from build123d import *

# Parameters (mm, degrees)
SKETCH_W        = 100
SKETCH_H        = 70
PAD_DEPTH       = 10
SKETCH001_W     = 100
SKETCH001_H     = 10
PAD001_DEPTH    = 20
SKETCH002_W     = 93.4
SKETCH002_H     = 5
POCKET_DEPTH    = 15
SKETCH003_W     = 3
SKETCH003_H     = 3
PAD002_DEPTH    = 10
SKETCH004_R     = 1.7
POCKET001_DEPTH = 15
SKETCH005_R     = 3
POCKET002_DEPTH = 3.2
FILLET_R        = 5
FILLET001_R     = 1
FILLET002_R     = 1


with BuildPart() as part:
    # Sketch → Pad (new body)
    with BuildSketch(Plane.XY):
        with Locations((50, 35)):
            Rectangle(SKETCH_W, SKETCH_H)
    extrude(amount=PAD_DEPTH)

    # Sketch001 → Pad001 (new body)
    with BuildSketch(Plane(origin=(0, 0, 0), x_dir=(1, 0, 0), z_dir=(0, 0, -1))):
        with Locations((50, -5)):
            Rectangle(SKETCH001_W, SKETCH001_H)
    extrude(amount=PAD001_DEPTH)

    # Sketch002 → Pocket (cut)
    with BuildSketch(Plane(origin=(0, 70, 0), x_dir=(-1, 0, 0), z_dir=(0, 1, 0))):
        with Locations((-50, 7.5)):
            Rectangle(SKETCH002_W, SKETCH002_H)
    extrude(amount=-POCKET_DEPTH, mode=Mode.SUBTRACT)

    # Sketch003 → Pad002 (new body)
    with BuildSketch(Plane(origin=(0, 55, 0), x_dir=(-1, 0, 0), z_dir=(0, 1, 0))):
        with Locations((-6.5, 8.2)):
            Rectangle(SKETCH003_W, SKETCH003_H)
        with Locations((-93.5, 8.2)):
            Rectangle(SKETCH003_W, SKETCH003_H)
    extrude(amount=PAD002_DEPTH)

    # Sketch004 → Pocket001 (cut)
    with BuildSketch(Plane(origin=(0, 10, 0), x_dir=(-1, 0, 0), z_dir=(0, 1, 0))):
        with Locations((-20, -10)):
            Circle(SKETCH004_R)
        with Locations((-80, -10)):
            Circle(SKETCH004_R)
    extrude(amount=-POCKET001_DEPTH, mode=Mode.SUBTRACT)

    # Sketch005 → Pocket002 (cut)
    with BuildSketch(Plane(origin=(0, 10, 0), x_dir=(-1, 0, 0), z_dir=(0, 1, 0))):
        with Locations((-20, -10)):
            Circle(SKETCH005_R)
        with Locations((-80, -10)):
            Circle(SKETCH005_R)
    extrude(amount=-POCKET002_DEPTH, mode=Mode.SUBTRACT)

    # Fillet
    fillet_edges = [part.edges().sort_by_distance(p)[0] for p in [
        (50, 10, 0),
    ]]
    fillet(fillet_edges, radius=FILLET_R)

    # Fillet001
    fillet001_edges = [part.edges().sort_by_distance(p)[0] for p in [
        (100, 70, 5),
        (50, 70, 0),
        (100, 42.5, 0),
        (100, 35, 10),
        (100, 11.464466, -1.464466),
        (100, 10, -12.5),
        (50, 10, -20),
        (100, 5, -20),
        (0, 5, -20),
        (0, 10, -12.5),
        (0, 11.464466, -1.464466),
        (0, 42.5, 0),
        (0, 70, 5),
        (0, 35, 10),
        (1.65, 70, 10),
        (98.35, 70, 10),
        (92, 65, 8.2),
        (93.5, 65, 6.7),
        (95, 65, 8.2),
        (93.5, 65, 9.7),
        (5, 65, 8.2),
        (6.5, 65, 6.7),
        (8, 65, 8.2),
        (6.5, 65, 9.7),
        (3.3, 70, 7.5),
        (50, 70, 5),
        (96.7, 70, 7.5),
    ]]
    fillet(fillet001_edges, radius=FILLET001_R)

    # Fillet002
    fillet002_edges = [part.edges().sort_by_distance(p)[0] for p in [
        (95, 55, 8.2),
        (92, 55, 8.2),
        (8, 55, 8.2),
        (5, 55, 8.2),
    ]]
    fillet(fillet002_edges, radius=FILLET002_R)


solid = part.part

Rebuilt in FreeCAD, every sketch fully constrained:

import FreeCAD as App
import Part
import Sketcher


def edges_at(feature, points):
    """Names of the edges that pass closest to the given points."""
    edges = feature.Shape.Edges
    near = lambda p: min(range(len(edges)), key=lambda i: edges[i].distToShape(Part.Vertex(*p))[0])
    return sorted({f"Edge{near(p) + 1}" for p in points})

doc = App.newDocument("Part")
body = doc.addObject("PartDesign::Body", "Body")

sketch1 = body.newObject("Sketcher::SketchObject", "Sketch")
sketch1.AttachmentSupport = (doc.getObject("XY_Plane"), [""])
sketch1.MapMode = "FlatFace"
sketch1.addGeometry([
    Part.LineSegment(App.Vector(0, 70, 0), App.Vector(0, 0, 0)),
    Part.LineSegment(App.Vector(0, 0, 0), App.Vector(100, 0, 0)),
    Part.LineSegment(App.Vector(100, 0, 0), App.Vector(100, 70, 0)),
    Part.LineSegment(App.Vector(100, 70, 0), App.Vector(0, 70, 0)),
], False)
sketch1.addConstraint([
    Sketcher.Constraint("Coincident", 0, 2, 1, 1),
    Sketcher.Constraint("Coincident", 1, 2, 2, 1),
    Sketcher.Constraint("Coincident", 2, 2, 3, 1),
    Sketcher.Constraint("Coincident", 3, 2, 0, 1),
    Sketcher.Constraint("Vertical", 0),
    Sketcher.Constraint("Horizontal", 1),
    Sketcher.Constraint("Vertical", 2),
    Sketcher.Constraint("Horizontal", 3),
    Sketcher.Constraint("Coincident", 0, 2, -1, 1),
    Sketcher.Constraint("DistanceX", 1, 1, 1, 2, 100.0),
    Sketcher.Constraint("DistanceY", 0, 2, 0, 1, 70.0),
])
pad1 = body.newObject("PartDesign::Pad", "Pad")
pad1.Profile = sketch1
pad1.Length = 10

sketch2 = body.newObject("Sketcher::SketchObject", "Sketch001")
sketch2.AttachmentSupport = (doc.getObject("XY_Plane"), [""])
sketch2.MapMode = "FlatFace"
sketch2.addGeometry([
    Part.LineSegment(App.Vector(0, 0, 0), App.Vector(0, 10, 0)),
    Part.LineSegment(App.Vector(0, 10, 0), App.Vector(100, 10, 0)),
    Part.LineSegment(App.Vector(100, 10, 0), App.Vector(100, 0, 0)),
    Part.LineSegment(App.Vector(100, 0, 0), App.Vector(0, 0, 0)),
], False)
sketch2.addConstraint([
    Sketcher.Constraint("Coincident", 0, 2, 1, 1),
    Sketcher.Constraint("Coincident", 1, 2, 2, 1),
    Sketcher.Constraint("Coincident", 2, 2, 3, 1),
    Sketcher.Constraint("Coincident", 3, 2, 0, 1),
    Sketcher.Constraint("Vertical", 0),
    Sketcher.Constraint("Horizontal", 1),
    Sketcher.Constraint("Vertical", 2),
    Sketcher.Constraint("Horizontal", 3),
    Sketcher.Constraint("Coincident", 3, 2, -1, 1),
    Sketcher.Constraint("DistanceX", 1, 1, 1, 2, 100.0),
    Sketcher.Constraint("DistanceY", 0, 1, 0, 2, 10.0),
])
pad2 = body.newObject("PartDesign::Pad", "Pad001")
pad2.Profile = sketch2
pad2.Length = 20
pad2.Reversed = True

sketch3 = body.newObject("Sketcher::SketchObject", "Sketch002")
sketch3.AttachmentSupport = (doc.getObject("XZ_Plane"), [""])
sketch3.MapMode = "FlatFace"
sketch3.AttachmentOffset = App.Placement(App.Vector(0, 0, -70), App.Rotation())
sketch3.addGeometry([
    Part.LineSegment(App.Vector(97, 10, 0), App.Vector(97, 5, 0)),
    Part.LineSegment(App.Vector(97, 5, 0), App.Vector(3, 5, 0)),
    Part.LineSegment(App.Vector(3, 5, 0), App.Vector(3, 10, 0)),
    Part.LineSegment(App.Vector(3, 10, 0), App.Vector(97, 10, 0)),
], False)
sketch3.addConstraint([
    Sketcher.Constraint("Coincident", 0, 2, 1, 1),
    Sketcher.Constraint("Coincident", 1, 2, 2, 1),
    Sketcher.Constraint("Coincident", 2, 2, 3, 1),
    Sketcher.Constraint("Coincident", 3, 2, 0, 1),
    Sketcher.Constraint("Vertical", 0),
    Sketcher.Constraint("Horizontal", 1),
    Sketcher.Constraint("Vertical", 2),
    Sketcher.Constraint("Horizontal", 3),
    Sketcher.Constraint("DistanceY", 0, 2, 0, 1, 5.0),
    Sketcher.Constraint("DistanceX", 1, 2, 1, 1, 93.4),
    Sketcher.Constraint("DistanceY", -1, 1, 0, 2, 5.0),
    Sketcher.Constraint("DistanceX", -1, 1, 0, 2, 96.7),
])
pocket1 = body.newObject("PartDesign::Pocket", "Pocket")
pocket1.Profile = sketch3
pocket1.Length = 15
pocket1.Reversed = True

sketch4 = body.newObject("Sketcher::SketchObject", "Sketch003")
sketch4.AttachmentSupport = (doc.getObject("XZ_Plane"), [""])
sketch4.MapMode = "FlatFace"
sketch4.AttachmentOffset = App.Placement(App.Vector(0, 0, -55), App.Rotation())
sketch4.addGeometry([
    Part.LineSegment(App.Vector(8, 9.7, 0), App.Vector(8, 6.7, 0)),
    Part.LineSegment(App.Vector(8, 6.7, 0), App.Vector(5, 6.7, 0)),
    Part.LineSegment(App.Vector(5, 6.7, 0), App.Vector(5, 9.7, 0)),
    Part.LineSegment(App.Vector(5, 9.7, 0), App.Vector(8, 9.7, 0)),
    Part.LineSegment(App.Vector(95, 9.7, 0), App.Vector(95, 6.7, 0)),
    Part.LineSegment(App.Vector(95, 6.7, 0), App.Vector(92, 6.7, 0)),
    Part.LineSegment(App.Vector(92, 6.7, 0), App.Vector(92, 9.7, 0)),
    Part.LineSegment(App.Vector(92, 9.7, 0), App.Vector(95, 9.7, 0)),
], False)
sketch4.addConstraint([
    Sketcher.Constraint("Coincident", 0, 2, 1, 1),
    Sketcher.Constraint("Coincident", 1, 2, 2, 1),
    Sketcher.Constraint("Coincident", 2, 2, 3, 1),
    Sketcher.Constraint("Coincident", 3, 2, 0, 1),
    Sketcher.Constraint("Coincident", 4, 2, 5, 1),
    Sketcher.Constraint("Coincident", 5, 2, 6, 1),
    Sketcher.Constraint("Coincident", 6, 2, 7, 1),
    Sketcher.Constraint("Coincident", 7, 2, 4, 1),
    Sketcher.Constraint("Vertical", 0),
    Sketcher.Constraint("Horizontal", 1),
    Sketcher.Constraint("Vertical", 2),
    Sketcher.Constraint("Horizontal", 3),
    Sketcher.Constraint("Vertical", 4),
    Sketcher.Constraint("Horizontal", 5),
    Sketcher.Constraint("Vertical", 6),
    Sketcher.Constraint("Horizontal", 7),
    Sketcher.Constraint("Horizontal", 1, 2, 4, 2),
    Sketcher.Constraint("Horizontal", 3, 2, 6, 2),
    Sketcher.Constraint("Equal", 3, 5),
    Sketcher.Constraint("Equal", 7, 0),
    Sketcher.Constraint("DistanceX", 1, 2, 1, 1, 3.0),
    Sketcher.Constraint("DistanceX", -1, 1, 0, 2, 8.0),
    Sketcher.Constraint("DistanceX", -1, 1, 4, 2, 95.0),
    Sketcher.Constraint("DistanceY", -1, 1, 0, 2, 6.7),
])
pad3 = body.newObject("PartDesign::Pad", "Pad002")
pad3.Profile = sketch4
pad3.Length = 10
pad3.Reversed = True

sketch5 = body.newObject("Sketcher::SketchObject", "Sketch004")
sketch5.AttachmentSupport = (doc.getObject("XZ_Plane"), [""])
sketch5.MapMode = "FlatFace"
sketch5.AttachmentOffset = App.Placement(App.Vector(0, 0, -10), App.Rotation())
sketch5.addGeometry([
    Part.Circle(App.Vector(20, -10, 0), App.Vector(0, 0, 1), 1.7),
    Part.Circle(App.Vector(80, -10, 0), App.Vector(0, 0, 1), 1.7),
], False)
sketch5.addConstraint([
    Sketcher.Constraint("Equal", 0, 1),
    Sketcher.Constraint("Horizontal", 0, 3, 1, 3),
    Sketcher.Constraint("Diameter", 0, 3.4),
    Sketcher.Constraint("DistanceX", -1, 1, 0, 3, 20.0),
    Sketcher.Constraint("DistanceY", 0, 3, -1, 1, 10.0),
    Sketcher.Constraint("DistanceX", -1, 1, 1, 3, 80.0),
])
pocket2 = body.newObject("PartDesign::Pocket", "Pocket001")
pocket2.Profile = sketch5
pocket2.Length = 15
pocket2.Reversed = True

sketch6 = body.newObject("Sketcher::SketchObject", "Sketch005")
sketch6.AttachmentSupport = (doc.getObject("XZ_Plane"), [""])
sketch6.MapMode = "FlatFace"
sketch6.AttachmentOffset = App.Placement(App.Vector(0, 0, -10), App.Rotation())
sketch6.addGeometry([
    Part.Circle(App.Vector(20, -10, 0), App.Vector(0, 0, 1), 3),
    Part.Circle(App.Vector(80, -10, 0), App.Vector(0, 0, 1), 3),
], False)
sketch6.addConstraint([
    Sketcher.Constraint("Equal", 0, 1),
    Sketcher.Constraint("Horizontal", 0, 3, 1, 3),
    Sketcher.Constraint("Diameter", 0, 6.0),
    Sketcher.Constraint("DistanceX", -1, 1, 0, 3, 20.0),
    Sketcher.Constraint("DistanceY", 0, 3, -1, 1, 10.0),
    Sketcher.Constraint("DistanceX", -1, 1, 1, 3, 80.0),
])
pocket3 = body.newObject("PartDesign::Pocket", "Pocket002")
pocket3.Profile = sketch6
pocket3.Length = 3.2
pocket3.Reversed = True
doc.recompute()

fillet = body.newObject("PartDesign::Fillet", "Fillet")
fillet.Base = (pocket3, edges_at(pocket3, [(50, 10, 0)]))
fillet.Radius = 5
doc.recompute()

fillet2 = body.newObject("PartDesign::Fillet", "Fillet001")
fillet2.Base = (fillet, edges_at(fillet, [
    (100, 70, 5),
    (50, 70, 0),
    (100, 42.5, 0),
    (100, 35, 10),
    (100, 11.464, -1.464),
    (100, 10, -12.5),
    (50, 10, -20),
    (100, 5, -20),
    (0, 5, -20),
    (0, 10, -12.5),
    (0, 11.464, -1.464),
    (0, 42.5, 0),
    (0, 70, 5),
    (0, 35, 10),
    (1.65, 70, 10),
    (98.35, 70, 10),
    (92, 65, 8.2),
    (93.5, 65, 6.7),
    (95, 65, 8.2),
    (93.5, 65, 9.7),
    (5, 65, 8.2),
    (6.5, 65, 6.7),
    (8, 65, 8.2),
    (6.5, 65, 9.7),
    (3.3, 70, 7.5),
    (50, 70, 5),
    (96.7, 70, 7.5),
]))
fillet2.Radius = 1
doc.recompute()

fillet3 = body.newObject("PartDesign::Fillet", "Fillet002")
fillet3.Base = (fillet2, edges_at(fillet2, [
    (95, 55, 8.2),
    (92, 55, 8.2),
    (8, 55, 8.2),
    (5, 55, 8.2),
]))
fillet3.Radius = 1

doc.recompute()
